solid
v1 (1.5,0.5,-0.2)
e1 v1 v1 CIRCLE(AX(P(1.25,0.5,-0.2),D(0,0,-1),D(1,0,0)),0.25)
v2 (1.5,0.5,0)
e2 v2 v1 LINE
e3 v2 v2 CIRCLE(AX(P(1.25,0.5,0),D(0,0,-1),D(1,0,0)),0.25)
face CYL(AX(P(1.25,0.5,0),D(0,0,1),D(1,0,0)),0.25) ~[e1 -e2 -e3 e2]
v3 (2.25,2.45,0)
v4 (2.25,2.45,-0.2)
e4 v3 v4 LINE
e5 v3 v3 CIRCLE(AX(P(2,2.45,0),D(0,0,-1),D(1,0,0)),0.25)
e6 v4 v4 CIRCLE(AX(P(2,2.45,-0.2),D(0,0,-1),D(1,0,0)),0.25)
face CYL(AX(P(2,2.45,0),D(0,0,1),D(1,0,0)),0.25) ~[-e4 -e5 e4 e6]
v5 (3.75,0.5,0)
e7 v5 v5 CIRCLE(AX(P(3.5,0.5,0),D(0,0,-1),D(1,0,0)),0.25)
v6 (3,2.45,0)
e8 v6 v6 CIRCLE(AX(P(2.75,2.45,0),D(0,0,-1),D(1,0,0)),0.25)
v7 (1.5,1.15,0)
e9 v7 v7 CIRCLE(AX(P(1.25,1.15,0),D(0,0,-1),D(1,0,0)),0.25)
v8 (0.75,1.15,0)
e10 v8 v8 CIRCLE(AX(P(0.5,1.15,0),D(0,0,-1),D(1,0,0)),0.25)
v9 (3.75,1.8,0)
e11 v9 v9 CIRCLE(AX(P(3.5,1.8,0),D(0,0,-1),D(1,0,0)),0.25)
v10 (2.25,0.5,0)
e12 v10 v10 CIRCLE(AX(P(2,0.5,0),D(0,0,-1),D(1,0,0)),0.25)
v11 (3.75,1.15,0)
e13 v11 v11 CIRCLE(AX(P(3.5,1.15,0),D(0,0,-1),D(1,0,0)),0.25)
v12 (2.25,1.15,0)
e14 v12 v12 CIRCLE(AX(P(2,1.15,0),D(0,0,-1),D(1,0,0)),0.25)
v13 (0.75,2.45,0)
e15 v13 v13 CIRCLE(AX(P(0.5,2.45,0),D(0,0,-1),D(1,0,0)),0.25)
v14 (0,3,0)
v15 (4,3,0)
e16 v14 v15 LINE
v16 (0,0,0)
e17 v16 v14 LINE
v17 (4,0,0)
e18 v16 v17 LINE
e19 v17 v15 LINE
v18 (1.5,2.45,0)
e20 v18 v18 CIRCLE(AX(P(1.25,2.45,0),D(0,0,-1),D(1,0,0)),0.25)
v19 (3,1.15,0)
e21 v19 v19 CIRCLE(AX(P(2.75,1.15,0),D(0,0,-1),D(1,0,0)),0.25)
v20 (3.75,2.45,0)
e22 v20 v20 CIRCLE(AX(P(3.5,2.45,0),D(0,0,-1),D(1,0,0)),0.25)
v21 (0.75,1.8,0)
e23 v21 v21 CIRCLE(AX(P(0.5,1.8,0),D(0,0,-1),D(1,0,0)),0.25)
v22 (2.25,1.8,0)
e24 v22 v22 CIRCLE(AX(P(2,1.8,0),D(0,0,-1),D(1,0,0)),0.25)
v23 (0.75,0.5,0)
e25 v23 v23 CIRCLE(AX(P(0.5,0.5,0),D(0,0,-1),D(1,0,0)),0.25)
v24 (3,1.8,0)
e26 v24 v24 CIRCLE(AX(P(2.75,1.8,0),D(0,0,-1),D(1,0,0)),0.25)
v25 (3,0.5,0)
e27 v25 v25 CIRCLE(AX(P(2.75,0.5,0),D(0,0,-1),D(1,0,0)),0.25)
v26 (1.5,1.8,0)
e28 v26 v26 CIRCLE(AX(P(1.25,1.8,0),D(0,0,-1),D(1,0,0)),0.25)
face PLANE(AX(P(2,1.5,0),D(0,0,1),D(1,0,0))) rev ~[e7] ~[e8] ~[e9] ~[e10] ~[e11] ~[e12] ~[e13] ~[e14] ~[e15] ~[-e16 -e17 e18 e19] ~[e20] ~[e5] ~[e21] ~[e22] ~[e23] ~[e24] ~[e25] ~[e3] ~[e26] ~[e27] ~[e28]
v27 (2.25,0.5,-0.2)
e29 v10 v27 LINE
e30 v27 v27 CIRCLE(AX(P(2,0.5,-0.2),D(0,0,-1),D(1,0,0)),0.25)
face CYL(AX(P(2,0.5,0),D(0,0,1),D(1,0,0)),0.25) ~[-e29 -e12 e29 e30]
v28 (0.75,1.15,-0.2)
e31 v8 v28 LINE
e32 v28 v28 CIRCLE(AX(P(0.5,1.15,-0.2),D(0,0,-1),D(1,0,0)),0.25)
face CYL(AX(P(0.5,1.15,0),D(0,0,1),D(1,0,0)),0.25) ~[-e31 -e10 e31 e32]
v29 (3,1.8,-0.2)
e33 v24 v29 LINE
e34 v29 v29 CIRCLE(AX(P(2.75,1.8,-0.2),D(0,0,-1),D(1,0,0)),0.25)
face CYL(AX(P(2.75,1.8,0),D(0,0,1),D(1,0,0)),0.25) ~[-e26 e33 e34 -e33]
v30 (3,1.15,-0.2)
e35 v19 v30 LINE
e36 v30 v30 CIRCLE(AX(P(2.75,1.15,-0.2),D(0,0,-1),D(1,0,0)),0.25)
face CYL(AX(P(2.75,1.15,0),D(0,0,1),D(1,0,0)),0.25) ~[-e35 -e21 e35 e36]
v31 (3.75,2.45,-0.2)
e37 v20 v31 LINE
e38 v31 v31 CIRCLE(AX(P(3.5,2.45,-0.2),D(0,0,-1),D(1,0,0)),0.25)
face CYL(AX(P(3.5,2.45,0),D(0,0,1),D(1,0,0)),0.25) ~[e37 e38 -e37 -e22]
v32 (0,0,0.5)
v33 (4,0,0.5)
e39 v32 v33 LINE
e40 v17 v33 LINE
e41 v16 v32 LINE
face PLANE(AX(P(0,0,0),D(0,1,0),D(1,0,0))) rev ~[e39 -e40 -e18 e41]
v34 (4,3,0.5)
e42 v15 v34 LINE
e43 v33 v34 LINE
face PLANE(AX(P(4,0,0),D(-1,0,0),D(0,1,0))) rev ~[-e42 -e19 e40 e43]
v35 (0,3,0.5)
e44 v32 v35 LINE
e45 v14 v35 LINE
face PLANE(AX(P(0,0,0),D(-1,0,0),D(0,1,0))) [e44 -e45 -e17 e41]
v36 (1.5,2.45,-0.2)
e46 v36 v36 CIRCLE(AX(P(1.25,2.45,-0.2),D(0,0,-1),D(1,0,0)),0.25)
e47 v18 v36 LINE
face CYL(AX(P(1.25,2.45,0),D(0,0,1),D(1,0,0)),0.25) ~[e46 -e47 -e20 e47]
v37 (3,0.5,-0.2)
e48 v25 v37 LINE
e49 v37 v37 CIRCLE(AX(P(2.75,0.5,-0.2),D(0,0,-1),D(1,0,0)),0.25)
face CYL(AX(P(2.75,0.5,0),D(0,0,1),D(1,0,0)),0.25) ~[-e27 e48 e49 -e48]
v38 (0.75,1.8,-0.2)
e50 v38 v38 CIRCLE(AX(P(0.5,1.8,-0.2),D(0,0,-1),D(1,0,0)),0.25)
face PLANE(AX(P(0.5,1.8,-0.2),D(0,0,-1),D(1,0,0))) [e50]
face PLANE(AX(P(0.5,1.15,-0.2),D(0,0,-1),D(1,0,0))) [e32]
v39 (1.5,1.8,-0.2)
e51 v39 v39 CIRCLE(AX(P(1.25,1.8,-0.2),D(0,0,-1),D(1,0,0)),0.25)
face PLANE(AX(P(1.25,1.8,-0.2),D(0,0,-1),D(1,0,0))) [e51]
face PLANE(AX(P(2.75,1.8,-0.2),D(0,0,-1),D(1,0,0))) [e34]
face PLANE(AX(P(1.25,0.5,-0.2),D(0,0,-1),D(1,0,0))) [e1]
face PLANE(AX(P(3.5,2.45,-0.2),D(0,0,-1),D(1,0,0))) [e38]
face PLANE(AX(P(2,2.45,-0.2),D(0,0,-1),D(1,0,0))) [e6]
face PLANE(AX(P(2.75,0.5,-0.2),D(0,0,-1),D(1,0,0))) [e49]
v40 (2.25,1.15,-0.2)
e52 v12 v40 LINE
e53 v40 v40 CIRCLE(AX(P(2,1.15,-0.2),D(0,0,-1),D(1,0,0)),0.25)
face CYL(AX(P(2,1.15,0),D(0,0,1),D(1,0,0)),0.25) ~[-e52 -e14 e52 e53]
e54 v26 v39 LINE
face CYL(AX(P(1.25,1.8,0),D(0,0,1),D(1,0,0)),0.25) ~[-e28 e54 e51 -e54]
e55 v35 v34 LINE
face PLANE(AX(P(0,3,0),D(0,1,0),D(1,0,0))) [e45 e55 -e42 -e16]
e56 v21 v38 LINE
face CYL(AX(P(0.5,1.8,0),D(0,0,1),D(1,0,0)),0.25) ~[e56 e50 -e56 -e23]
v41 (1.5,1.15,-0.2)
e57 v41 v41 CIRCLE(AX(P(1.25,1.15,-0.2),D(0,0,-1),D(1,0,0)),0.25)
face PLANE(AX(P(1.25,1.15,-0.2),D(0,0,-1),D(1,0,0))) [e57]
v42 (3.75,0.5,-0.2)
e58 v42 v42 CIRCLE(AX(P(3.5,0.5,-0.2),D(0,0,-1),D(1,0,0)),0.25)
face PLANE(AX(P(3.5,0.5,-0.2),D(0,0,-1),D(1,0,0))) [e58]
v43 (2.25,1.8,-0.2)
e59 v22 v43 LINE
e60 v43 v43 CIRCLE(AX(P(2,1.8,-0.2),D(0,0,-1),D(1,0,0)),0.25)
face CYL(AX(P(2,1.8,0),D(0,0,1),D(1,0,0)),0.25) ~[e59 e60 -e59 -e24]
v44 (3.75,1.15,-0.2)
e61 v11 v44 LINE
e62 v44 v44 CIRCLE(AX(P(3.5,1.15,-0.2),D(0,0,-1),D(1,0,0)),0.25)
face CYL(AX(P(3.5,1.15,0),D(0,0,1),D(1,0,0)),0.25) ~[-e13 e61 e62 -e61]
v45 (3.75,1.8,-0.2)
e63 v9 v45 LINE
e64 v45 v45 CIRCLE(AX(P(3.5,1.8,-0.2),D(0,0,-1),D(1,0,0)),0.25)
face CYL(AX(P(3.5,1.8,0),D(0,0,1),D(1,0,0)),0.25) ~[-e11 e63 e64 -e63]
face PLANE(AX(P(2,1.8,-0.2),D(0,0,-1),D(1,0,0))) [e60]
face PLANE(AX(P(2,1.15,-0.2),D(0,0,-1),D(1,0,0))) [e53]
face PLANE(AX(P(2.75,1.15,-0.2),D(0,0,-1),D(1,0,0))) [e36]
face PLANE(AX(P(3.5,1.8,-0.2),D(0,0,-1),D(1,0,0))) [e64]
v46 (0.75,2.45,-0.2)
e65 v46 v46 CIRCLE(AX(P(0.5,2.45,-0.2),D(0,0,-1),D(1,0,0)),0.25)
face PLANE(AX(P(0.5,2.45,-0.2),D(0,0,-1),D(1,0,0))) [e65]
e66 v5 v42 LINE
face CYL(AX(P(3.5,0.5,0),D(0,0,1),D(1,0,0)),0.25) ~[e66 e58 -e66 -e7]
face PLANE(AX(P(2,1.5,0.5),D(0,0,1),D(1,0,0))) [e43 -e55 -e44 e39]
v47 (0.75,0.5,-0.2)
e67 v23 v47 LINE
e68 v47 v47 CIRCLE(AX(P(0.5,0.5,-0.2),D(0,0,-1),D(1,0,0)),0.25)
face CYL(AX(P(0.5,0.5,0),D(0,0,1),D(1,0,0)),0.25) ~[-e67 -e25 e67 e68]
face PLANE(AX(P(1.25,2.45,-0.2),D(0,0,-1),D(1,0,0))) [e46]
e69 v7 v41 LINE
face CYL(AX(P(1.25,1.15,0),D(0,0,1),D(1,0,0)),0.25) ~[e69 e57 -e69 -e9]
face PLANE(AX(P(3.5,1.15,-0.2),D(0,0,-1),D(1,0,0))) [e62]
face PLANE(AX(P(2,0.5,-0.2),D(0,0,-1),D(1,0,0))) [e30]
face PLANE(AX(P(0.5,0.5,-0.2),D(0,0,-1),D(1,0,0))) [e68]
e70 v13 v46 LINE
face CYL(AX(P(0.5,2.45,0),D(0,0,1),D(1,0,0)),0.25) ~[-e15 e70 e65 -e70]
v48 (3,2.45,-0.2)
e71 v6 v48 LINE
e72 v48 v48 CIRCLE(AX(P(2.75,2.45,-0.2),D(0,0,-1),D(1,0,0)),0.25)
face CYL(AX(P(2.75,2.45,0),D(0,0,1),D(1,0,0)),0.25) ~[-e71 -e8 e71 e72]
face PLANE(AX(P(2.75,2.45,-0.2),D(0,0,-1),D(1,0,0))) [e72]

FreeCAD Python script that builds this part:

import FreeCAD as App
import Part
import Sketcher
Q = App.Units.Quantity

doc = App.newDocument("Part")
body = doc.addObject("PartDesign::Body", "Body")

# Sketch on XY plane
sketch1 = doc.addObject("Sketcher::SketchObject", "Sketch")
body.addObject(sketch1)
sketch1.AttachmentSupport = (doc.XY_Plane, [""])
sketch1.MapMode = "FlatFace"
sketch1.addGeometry([
    Part.LineSegment(App.Vector(0, 3, 0), App.Vector(0, 0, 0)),
    Part.LineSegment(App.Vector(0, 0, 0), App.Vector(4, 0, 0)),
    Part.LineSegment(App.Vector(4, 0, 0), App.Vector(4, 3, 0)),
    Part.LineSegment(App.Vector(4, 3, 0), App.Vector(0, 3, 0)),
], False)
sketch1.addConstraint([
    Sketcher.Constraint("Coincident", 0, 2, 1, 1),
    Sketcher.Constraint("Coincident", 1, 2, 2, 1),
    Sketcher.Constraint("Coincident", 2, 2, 3, 1),
    Sketcher.Constraint("Coincident", 3, 2, 0, 1),
    Sketcher.Constraint("Vertical", 0),
    Sketcher.Constraint("Horizontal", 1),
    Sketcher.Constraint("Vertical", 2),
    Sketcher.Constraint("Horizontal", 3),
    Sketcher.Constraint("Coincident", 0, 2, -1, 1),
    Sketcher.Constraint("DistanceX", 1, 1, 1, 2, Q("4 mm")),
    Sketcher.Constraint("DistanceY", 0, 2, 0, 1, Q("3 mm")),
])
pad1 = doc.addObject("PartDesign::Pad", "Pad")
body.addObject(pad1)
pad1.Profile = sketch1
pad1.Length = 0.5

# Sketch on XY plane
sketch2 = doc.addObject("Sketcher::SketchObject", "Sketch001")
body.addObject(sketch2)
sketch2.AttachmentSupport = (doc.XY_Plane, [""])
sketch2.MapMode = "FlatFace"
sketch2.addGeometry([
    Part.Circle(App.Vector(0.5, 0.5, 0), App.Vector(0, 0, 1), 0.25),  # 0
    Part.Circle(App.Vector(1.25, 0.5, 0), App.Vector(0, 0, 1), 0.25),  # 1
    Part.Circle(App.Vector(2, 0.5, 0), App.Vector(0, 0, 1), 0.25),  # 2
    Part.Circle(App.Vector(2.75, 0.5, 0), App.Vector(0, 0, 1), 0.25),  # 3
    Part.Circle(App.Vector(3.5, 0.5, 0), App.Vector(0, 0, 1), 0.25),  # 4
    Part.Circle(App.Vector(2, 1.15, 0), App.Vector(0, 0, 1), 0.25),  # 5
    Part.Circle(App.Vector(2.75, 1.15, 0), App.Vector(0, 0, 1), 0.25),  # 6
    Part.Circle(App.Vector(3.5, 1.15, 0), App.Vector(0, 0, 1), 0.25),  # 7
    Part.Circle(App.Vector(0.5, 1.15, 0), App.Vector(0, 0, 1), 0.25),  # 8
    Part.Circle(App.Vector(1.25, 1.15, 0), App.Vector(0, 0, 1), 0.25),  # 9
    Part.Circle(App.Vector(2, 1.8, 0), App.Vector(0, 0, 1), 0.25),  # 10
    Part.Circle(App.Vector(2.75, 1.8, 0), App.Vector(0, 0, 1), 0.25),  # 11
    Part.Circle(App.Vector(3.5, 1.8, 0), App.Vector(0, 0, 1), 0.25),  # 12
    Part.Circle(App.Vector(0.5, 1.8, 0), App.Vector(0, 0, 1), 0.25),  # 13
    Part.Circle(App.Vector(1.25, 1.8, 0), App.Vector(0, 0, 1), 0.25),  # 14
    Part.Circle(App.Vector(2, 2.45, 0), App.Vector(0, 0, 1), 0.25),  # 15
    Part.Circle(App.Vector(2.75, 2.45, 0), App.Vector(0, 0, 1), 0.25),  # 16
    Part.Circle(App.Vector(3.5, 2.45, 0), App.Vector(0, 0, 1), 0.25),  # 17
    Part.Circle(App.Vector(0.5, 2.45, 0), App.Vector(0, 0, 1), 0.25),  # 18
    Part.Circle(App.Vector(1.25, 2.45, 0), App.Vector(0, 0, 1), 0.25),  # 19
], False)
sketch2.addConstraint([
    Sketcher.Constraint("Equal", 0, 1),
    Sketcher.Constraint("Equal", 1, 2),
    Sketcher.Constraint("Equal", 2, 3),
    Sketcher.Constraint("Equal", 3, 4),
    Sketcher.Constraint("Equal", 4, 5),
    Sketcher.Constraint("Equal", 5, 6),
    Sketcher.Constraint("Equal", 6, 7),
    Sketcher.Constraint("Equal", 7, 8),
    Sketcher.Constraint("Equal", 8, 9),
    Sketcher.Constraint("Equal", 9, 10),
    Sketcher.Constraint("Equal", 10, 11),
    Sketcher.Constraint("Equal", 11, 12),
    Sketcher.Constraint("Equal", 12, 13),
    Sketcher.Constraint("Equal", 13, 14),
    Sketcher.Constraint("Equal", 14, 15),
    Sketcher.Constraint("Equal", 15, 16),
    Sketcher.Constraint("Equal", 16, 17),
    Sketcher.Constraint("Equal", 17, 18),
    Sketcher.Constraint("Equal", 18, 19),
    Sketcher.Constraint("Horizontal", 0, 3, 1, 3),
    Sketcher.Constraint("Horizontal", 1, 3, 2, 3),
    Sketcher.Constraint("Horizontal", 2, 3, 3, 3),
    Sketcher.Constraint("Horizontal", 3, 3, 4, 3),
    Sketcher.Constraint("Horizontal", 5, 3, 6, 3),
    Sketcher.Constraint("Horizontal", 6, 3, 7, 3),
    Sketcher.Constraint("Horizontal", 7, 3, 8, 3),
    Sketcher.Constraint("Horizontal", 8, 3, 9, 3),
    Sketcher.Constraint("Horizontal", 10, 3, 11, 3),
    Sketcher.Constraint("Horizontal", 11, 3, 12, 3),
    Sketcher.Constraint("Horizontal", 12, 3, 13, 3),
    Sketcher.Constraint("Horizontal", 13, 3, 14, 3),
    Sketcher.Constraint("Horizontal", 15, 3, 16, 3),
    Sketcher.Constraint("Horizontal", 16, 3, 17, 3),
    Sketcher.Constraint("Horizontal", 17, 3, 18, 3),
    Sketcher.Constraint("Horizontal", 18, 3, 19, 3),
    Sketcher.Constraint("Vertical", 2, 3, 5, 3),
    Sketcher.Constraint("Vertical", 3, 3, 6, 3),
    Sketcher.Constraint("Vertical", 4, 3, 7, 3),
    Sketcher.Constraint("Vertical", 0, 3, 8, 3),
    Sketcher.Constraint("Vertical", 1, 3, 9, 3),
    Sketcher.Constraint("Vertical", 5, 3, 10, 3),
    Sketcher.Constraint("Vertical", 6, 3, 11, 3),
    Sketcher.Constraint("Vertical", 7, 3, 12, 3),
    Sketcher.Constraint("Vertical", 8, 3, 13, 3),
    Sketcher.Constraint("Vertical", 9, 3, 14, 3),
    Sketcher.Constraint("Vertical", 10, 3, 15, 3),
    Sketcher.Constraint("Vertical", 11, 3, 16, 3),
    Sketcher.Constraint("Vertical", 12, 3, 17, 3),
    Sketcher.Constraint("Vertical", 13, 3, 18, 3),
    Sketcher.Constraint("Vertical", 14, 3, 19, 3),
    Sketcher.Constraint("Diameter", 0, Q("0.5 mm")),
    Sketcher.Constraint("DistanceX", -1, 1, 2, 3, Q("2 mm")),
    Sketcher.Constraint("DistanceX", 0, 3, 4, 3, Q("3 mm")),
    Sketcher.Constraint("DistanceX", -1, 1, 0, 3, Q("0.5 mm")),
    Sketcher.Constraint("DistanceY", -1, 1, 0, 3, Q("0.5 mm")),
    Sketcher.Constraint("DistanceY", -1, 1, 10, 3, Q("1.8 mm")),
    Sketcher.Constraint("DistanceX", 1, 3, 3, 3, Q("1.5 mm")),
    Sketcher.Constraint("DistanceY", 5, 3, 15, 3, Q("1.3 mm")),
    Sketcher.Constraint("DistanceX", -1, 1, 1, 3, Q("1.25 mm")),
    Sketcher.Constraint("DistanceY", -1, 1, 5, 3, Q("1.15 mm")),
])
pad2 = doc.addObject("PartDesign::Pad", "Pad001")
body.addObject(pad2)
pad2.Profile = sketch2
pad2.Length = 0.2
pad2.Reversed = True

doc.recompute()
